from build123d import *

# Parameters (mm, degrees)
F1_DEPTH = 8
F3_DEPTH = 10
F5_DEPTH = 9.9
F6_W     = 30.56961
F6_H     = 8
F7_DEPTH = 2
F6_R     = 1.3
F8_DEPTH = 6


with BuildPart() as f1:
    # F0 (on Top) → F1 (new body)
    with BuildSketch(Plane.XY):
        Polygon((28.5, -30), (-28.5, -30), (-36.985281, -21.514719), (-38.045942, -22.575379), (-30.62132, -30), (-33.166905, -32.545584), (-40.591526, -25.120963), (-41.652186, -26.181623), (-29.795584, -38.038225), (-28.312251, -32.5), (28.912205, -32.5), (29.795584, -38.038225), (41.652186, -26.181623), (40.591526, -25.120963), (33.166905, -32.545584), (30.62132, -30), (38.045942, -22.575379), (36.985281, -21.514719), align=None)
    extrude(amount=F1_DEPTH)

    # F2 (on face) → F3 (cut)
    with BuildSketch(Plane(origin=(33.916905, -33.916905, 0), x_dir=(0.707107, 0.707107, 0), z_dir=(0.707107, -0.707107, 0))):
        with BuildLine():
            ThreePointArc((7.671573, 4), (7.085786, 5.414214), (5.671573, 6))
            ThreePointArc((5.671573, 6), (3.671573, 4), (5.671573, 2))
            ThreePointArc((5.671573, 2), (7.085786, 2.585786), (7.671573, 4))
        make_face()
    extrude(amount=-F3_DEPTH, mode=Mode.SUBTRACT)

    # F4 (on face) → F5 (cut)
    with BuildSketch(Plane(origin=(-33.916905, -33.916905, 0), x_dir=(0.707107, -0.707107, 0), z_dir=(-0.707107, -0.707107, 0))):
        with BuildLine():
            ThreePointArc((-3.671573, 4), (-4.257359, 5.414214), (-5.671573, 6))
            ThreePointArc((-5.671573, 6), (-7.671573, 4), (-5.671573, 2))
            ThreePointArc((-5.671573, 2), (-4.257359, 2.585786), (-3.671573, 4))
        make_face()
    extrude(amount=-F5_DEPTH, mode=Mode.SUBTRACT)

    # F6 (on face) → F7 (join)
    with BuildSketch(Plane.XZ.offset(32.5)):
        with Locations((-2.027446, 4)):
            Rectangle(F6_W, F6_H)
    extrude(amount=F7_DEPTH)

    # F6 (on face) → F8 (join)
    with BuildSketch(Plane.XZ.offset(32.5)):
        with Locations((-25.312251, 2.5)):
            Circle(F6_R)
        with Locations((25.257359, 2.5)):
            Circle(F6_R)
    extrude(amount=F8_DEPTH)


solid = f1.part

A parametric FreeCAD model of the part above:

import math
import FreeCAD as App
import Part
import Sketcher

doc = App.newDocument("Part")
body = doc.addObject("PartDesign::Body", "Body")

# Sketch on XY plane
sketch1 = body.newObject("Sketcher::SketchObject", "Sketch")
sketch1.AttachmentSupport = (doc.getObject("XY_Plane"), [""])
sketch1.MapMode = "FlatFace"
sketch1.addGeometry([
    Part.LineSegment(App.Vector(28.5, -30, 0), App.Vector(-28.5, -30, 0)),  # 0
    Part.LineSegment(App.Vector(-28.5, -30, 0), App.Vector(-37, -21.5, 0)),  # 1
    Part.LineSegment(App.Vector(-37, -21.5, 0), App.Vector(-38, -22.6, 0)),  # 2
    Part.LineSegment(App.Vector(-38, -22.6, 0), App.Vector(-30.6, -30, 0)),  # 3
    Part.LineSegment(App.Vector(-30.6, -30, 0), App.Vector(-33.2, -32.5, 0)),  # 4
    Part.LineSegment(App.Vector(-33.2, -32.5, 0), App.Vector(-40.6, -25.1, 0)),  # 5
    Part.LineSegment(App.Vector(-40.6, -25.1, 0), App.Vector(-41.7, -26.2, 0)),  # 6
    Part.LineSegment(App.Vector(-41.7, -26.2, 0), App.Vector(-29.8, -38, 0)),  # 7
    Part.LineSegment(App.Vector(-29.8, -38, 0), App.Vector(-28.3, -32.5, 0)),  # 8
    Part.LineSegment(App.Vector(-28.3, -32.5, 0), App.Vector(28.9, -32.5, 0)),  # 9
    Part.LineSegment(App.Vector(28.9, -32.5, 0), App.Vector(29.8, -38, 0)),  # 10
    Part.LineSegment(App.Vector(29.8, -38, 0), App.Vector(41.7, -26.2, 0)),  # 11
    Part.LineSegment(App.Vector(41.7, -26.2, 0), App.Vector(40.6, -25.1, 0)),  # 12
    Part.LineSegment(App.Vector(40.6, -25.1, 0), App.Vector(33.2, -32.5, 0)),  # 13
    Part.LineSegment(App.Vector(33.2, -32.5, 0), App.Vector(30.6, -30, 0)),  # 14
    Part.LineSegment(App.Vector(30.6, -30, 0), App.Vector(38, -22.6, 0)),  # 15
    Part.LineSegment(App.Vector(38, -22.6, 0), App.Vector(37, -21.5, 0)),  # 16
    Part.LineSegment(App.Vector(37, -21.5, 0), App.Vector(28.5, -30, 0)),  # 17
], False)
sketch1.addConstraint([
    Sketcher.Constraint("Coincident", 0, 2, 1, 1),
    Sketcher.Constraint("Coincident", 1, 2, 2, 1),
    Sketcher.Constraint("Coincident", 2, 2, 3, 1),
    Sketcher.Constraint("Coincident", 3, 2, 4, 1),
    Sketcher.Constraint("Coincident", 4, 2, 5, 1),
    Sketcher.Constraint("Coincident", 5, 2, 6, 1),
    Sketcher.Constraint("Coincident", 6, 2, 7, 1),
    Sketcher.Constraint("Coincident", 7, 2, 8, 1),
    Sketcher.Constraint("Coincident", 8, 2, 9, 1),
    Sketcher.Constraint("Coincident", 9, 2, 10, 1),
    Sketcher.Constraint("Coincident", 10, 2, 11, 1),
    Sketcher.Constraint("Coincident", 11, 2, 12, 1),
    Sketcher.Constraint("Coincident", 12, 2, 13, 1),
    Sketcher.Constraint("Coincident", 13, 2, 14, 1),
    Sketcher.Constraint("Coincident", 14, 2, 15, 1),
    Sketcher.Constraint("Coincident", 15, 2, 16, 1),
    Sketcher.Constraint("Coincident", 16, 2, 17, 1),
    Sketcher.Constraint("Coincident", 17, 2, 0, 1),
    Sketcher.Constraint("Horizontal", 0),
    Sketcher.Constraint("Horizontal", 9),
    Sketcher.Constraint("Symmetric", 7, 2, 10, 2, -2),
    Sketcher.Constraint("Symmetric", 6, 2, 11, 2, -2),
    Sketcher.Constraint("Symmetric", 5, 2, 12, 2, -2),
    Sketcher.Constraint("Symmetric", 4, 2, 13, 2, -2),
    Sketcher.Constraint("Symmetric", 3, 2, 14, 2, -2),
    Sketcher.Constraint("Symmetric", 2, 2, 15, 2, -2),
    Sketcher.Constraint("Symmetric", 1, 2, 16, 2, -2),
    Sketcher.Constraint("Perpendicular", 1, 2),
    Sketcher.Constraint("Perpendicular", 2, 3),
    Sketcher.Constraint("Perpendicular", 3, 4),
    Sketcher.Constraint("Perpendicular", 4, 5),
    Sketcher.Constraint("Perpendicular", 5, 6),
    Sketcher.Constraint("Perpendicular", 6, 7),
    Sketcher.Constraint("Perpendicular", 7, 11),
    Sketcher.Constraint("Perpendicular", 16, 17),
    Sketcher.Constraint("Horizontal", 0, 2, 3, 2),
    Sketcher.Constraint("Equal", 3, 5),
    Sketcher.Constraint("Equal", 2, 6),
    Sketcher.Constraint("DistanceX", 0, 2, 0, 1, 57.0),
    Sketcher.Constraint("Distance", 1, 11.999999),
    Sketcher.Constraint("DistanceY", 0, 2, -1, 1, 30.0),
    Sketcher.Constraint("Distance", 2, 1.5),
    Sketcher.Constraint("Distance", 4, 3.6),
    Sketcher.Constraint("DistanceY", 8, 2, -1, 1, 32.5),
    Sketcher.Constraint("DistanceX", 6, 2, 7, 2, 11.856602),
    Sketcher.Constraint("DistanceX", 9, 2, 13, 2, 4.2547),
    Sketcher.Constraint("Distance", 8, 5.733429),
])
pad1 = body.newObject("PartDesign::Pad", "Pad")
pad1.Profile = sketch1
pad1.Length = 8

# Sketch on an angled plane
sketch2 = body.newObject("Sketcher::SketchObject", "Sketch001")
sketch2.Placement = App.Placement(App.Vector(33.916905, -33.916905, 0), App.Rotation(App.Vector(0.707106781, 0.707106781, 0), App.Vector(0, 0, 0.999999999), App.Vector(0.707106781, -0.707106781, 0), "ZXY"))
sketch2.addGeometry([
    Part.ArcOfCircle(Part.Circle(App.Vector(5.7, 4, 0), App.Vector(0, 0, 1), 2), math.radians(0), math.radians(90)),
    Part.ArcOfCircle(Part.Circle(App.Vector(5.7, 4, 0), App.Vector(0, 0, 1), 2), math.radians(90), math.radians(270)),
    Part.ArcOfCircle(Part.Circle(App.Vector(5.7, 4, 0), App.Vector(0, 0, 1), 2), math.radians(-90), math.radians(0)),
], False)
sketch2.addConstraint([
    Sketcher.Constraint("Tangent", 0, 2, 1, 1),
    Sketcher.Constraint("Tangent", 1, 2, 2, 1),
    Sketcher.Constraint("Tangent", 2, 2, 0, 1),
    Sketcher.Constraint("Horizontal", 1, 3, 2, 2),
    Sketcher.Constraint("Vertical", 2, 3, 0, 2),
    Sketcher.Constraint("Vertical", 0, 2, 1, 2),
    Sketcher.Constraint("Radius", 0, 2.0),
    Sketcher.Constraint("DistanceY", -1, 1, 0, 3, 4.0),
    Sketcher.Constraint("DistanceX", -1, 1, 0, 3, 5.671573),
])
pocket1 = body.newObject("PartDesign::Pocket", "Pocket")
pocket1.Profile = sketch2
pocket1.Length = 10

# Sketch on an angled plane
sketch3 = body.newObject("Sketcher::SketchObject", "Sketch002")
sketch3.Placement = App.Placement(App.Vector(-33.916905, -33.916905, 0), App.Rotation(App.Vector(0.707106781, -0.707106781, 0), App.Vector(0, 0, 0.999999999), App.Vector(-0.707106781, -0.707106781, 0), "ZXY"))
sketch3.addGeometry([
    Part.ArcOfCircle(Part.Circle(App.Vector(-5.7, 4, 0), App.Vector(0, 0, 1), 2), math.radians(0), math.radians(90)),
    Part.ArcOfCircle(Part.Circle(App.Vector(-5.7, 4, 0), App.Vector(0, 0, 1), 2), math.radians(90), math.radians(270)),
    Part.ArcOfCircle(Part.Circle(App.Vector(-5.7, 4, 0), App.Vector(0, 0, 1), 2), math.radians(-90), math.radians(0)),
], False)
sketch3.addConstraint([
    Sketcher.Constraint("Tangent", 0, 2, 1, 1),
    Sketcher.Constraint("Tangent", 1, 2, 2, 1),
    Sketcher.Constraint("Tangent", 2, 2, 0, 1),
    Sketcher.Constraint("Horizontal", 1, 3, 2, 2),
    Sketcher.Constraint("Vertical", 2, 3, 0, 2),
    Sketcher.Constraint("Vertical", 0, 2, 1, 2),
    Sketcher.Constraint("Radius", 0, 1.999999),
    Sketcher.Constraint("DistanceY", -1, 1, 0, 3, 4.000001),
    Sketcher.Constraint("DistanceX", 0, 3, -1, 1, 5.671572),
])
pocket2 = body.newObject("PartDesign::Pocket", "Pocket001")
pocket2.Profile = sketch3
pocket2.Length = 9.9

# Sketch on XZ plane
sketch4 = body.newObject("Sketcher::SketchObject", "Sketch003")
sketch4.AttachmentSupport = (doc.getObject("XZ_Plane"), [""])
sketch4.MapMode = "FlatFace"
sketch4.AttachmentOffset = App.Placement(App.Vector(0, 0, 32.5), App.Rotation())
sketch4.addGeometry([
    Part.LineSegment(App.Vector(-17, 8, 0), App.Vector(-17, 0, 0)),
    Part.LineSegment(App.Vector(-17, 0, 0), App.Vector(13, 0, 0)),
    Part.LineSegment(App.Vector(13, 0, 0), App.Vector(13, 8, 0)),
    Part.LineSegment(App.Vector(13, 8, 0), App.Vector(-17, 8, 0)),
], False)
sketch4.addConstraint([
    Sketcher.Constraint("Coincident", 0, 2, 1, 1),
    Sketcher.Constraint("Coincident", 1, 2, 2, 1),
    Sketcher.Constraint("Coincident", 2, 2, 3, 1),
    Sketcher.Constraint("Coincident", 3, 2, 0, 1),
    Sketcher.Constraint("Vertical", 0),
    Sketcher.Constraint("Horizontal", 1),
    Sketcher.Constraint("Vertical", 2),
    Sketcher.Constraint("Horizontal", 3),
    Sketcher.Constraint("PointOnObject", 0, 2, -1),
    Sketcher.Constraint("DistanceY", 0, 2, 0, 1, 8.0),
    Sketcher.Constraint("DistanceX", 1, 1, 1, 2, 30.56961),
    Sketcher.Constraint("DistanceX", 0, 2, -1, 1, 17.312251),
])
pad2 = body.newObject("PartDesign::Pad", "Pad001")
pad2.Profile = sketch4
pad2.Length = 2

# Sketch on XZ plane
sketch5 = body.newObject("Sketcher::SketchObject", "Sketch004")
sketch5.AttachmentSupport = (doc.getObject("XZ_Plane"), [""])
sketch5.MapMode = "FlatFace"
sketch5.AttachmentOffset = App.Placement(App.Vector(0, 0, 32.5), App.Rotation())
sketch5.addGeometry([
    Part.Circle(App.Vector(-25.3, 2.5, 0), App.Vector(0, 0, 1), 1.3),
    Part.Circle(App.Vector(25.3, 2.5, 0), App.Vector(0, 0, 1), 1.3),
], False)
sketch5.addConstraint([
    Sketcher.Constraint("Equal", 0, 1),
    Sketcher.Constraint("Horizontal", 0, 3, 1, 3),
    Sketcher.Constraint("Diameter", 0, 2.6),
    Sketcher.Constraint("DistanceY", -1, 1, 0, 3, 2.5),
    Sketcher.Constraint("DistanceX", 0, 3, -1, 1, 25.312251),
    Sketcher.Constraint("DistanceX", -1, 1, 1, 3, 25.257359),
])
pad3 = body.newObject("PartDesign::Pad", "Pad002")
pad3.Profile = sketch5
pad3.Length = 6

doc.recompute()
